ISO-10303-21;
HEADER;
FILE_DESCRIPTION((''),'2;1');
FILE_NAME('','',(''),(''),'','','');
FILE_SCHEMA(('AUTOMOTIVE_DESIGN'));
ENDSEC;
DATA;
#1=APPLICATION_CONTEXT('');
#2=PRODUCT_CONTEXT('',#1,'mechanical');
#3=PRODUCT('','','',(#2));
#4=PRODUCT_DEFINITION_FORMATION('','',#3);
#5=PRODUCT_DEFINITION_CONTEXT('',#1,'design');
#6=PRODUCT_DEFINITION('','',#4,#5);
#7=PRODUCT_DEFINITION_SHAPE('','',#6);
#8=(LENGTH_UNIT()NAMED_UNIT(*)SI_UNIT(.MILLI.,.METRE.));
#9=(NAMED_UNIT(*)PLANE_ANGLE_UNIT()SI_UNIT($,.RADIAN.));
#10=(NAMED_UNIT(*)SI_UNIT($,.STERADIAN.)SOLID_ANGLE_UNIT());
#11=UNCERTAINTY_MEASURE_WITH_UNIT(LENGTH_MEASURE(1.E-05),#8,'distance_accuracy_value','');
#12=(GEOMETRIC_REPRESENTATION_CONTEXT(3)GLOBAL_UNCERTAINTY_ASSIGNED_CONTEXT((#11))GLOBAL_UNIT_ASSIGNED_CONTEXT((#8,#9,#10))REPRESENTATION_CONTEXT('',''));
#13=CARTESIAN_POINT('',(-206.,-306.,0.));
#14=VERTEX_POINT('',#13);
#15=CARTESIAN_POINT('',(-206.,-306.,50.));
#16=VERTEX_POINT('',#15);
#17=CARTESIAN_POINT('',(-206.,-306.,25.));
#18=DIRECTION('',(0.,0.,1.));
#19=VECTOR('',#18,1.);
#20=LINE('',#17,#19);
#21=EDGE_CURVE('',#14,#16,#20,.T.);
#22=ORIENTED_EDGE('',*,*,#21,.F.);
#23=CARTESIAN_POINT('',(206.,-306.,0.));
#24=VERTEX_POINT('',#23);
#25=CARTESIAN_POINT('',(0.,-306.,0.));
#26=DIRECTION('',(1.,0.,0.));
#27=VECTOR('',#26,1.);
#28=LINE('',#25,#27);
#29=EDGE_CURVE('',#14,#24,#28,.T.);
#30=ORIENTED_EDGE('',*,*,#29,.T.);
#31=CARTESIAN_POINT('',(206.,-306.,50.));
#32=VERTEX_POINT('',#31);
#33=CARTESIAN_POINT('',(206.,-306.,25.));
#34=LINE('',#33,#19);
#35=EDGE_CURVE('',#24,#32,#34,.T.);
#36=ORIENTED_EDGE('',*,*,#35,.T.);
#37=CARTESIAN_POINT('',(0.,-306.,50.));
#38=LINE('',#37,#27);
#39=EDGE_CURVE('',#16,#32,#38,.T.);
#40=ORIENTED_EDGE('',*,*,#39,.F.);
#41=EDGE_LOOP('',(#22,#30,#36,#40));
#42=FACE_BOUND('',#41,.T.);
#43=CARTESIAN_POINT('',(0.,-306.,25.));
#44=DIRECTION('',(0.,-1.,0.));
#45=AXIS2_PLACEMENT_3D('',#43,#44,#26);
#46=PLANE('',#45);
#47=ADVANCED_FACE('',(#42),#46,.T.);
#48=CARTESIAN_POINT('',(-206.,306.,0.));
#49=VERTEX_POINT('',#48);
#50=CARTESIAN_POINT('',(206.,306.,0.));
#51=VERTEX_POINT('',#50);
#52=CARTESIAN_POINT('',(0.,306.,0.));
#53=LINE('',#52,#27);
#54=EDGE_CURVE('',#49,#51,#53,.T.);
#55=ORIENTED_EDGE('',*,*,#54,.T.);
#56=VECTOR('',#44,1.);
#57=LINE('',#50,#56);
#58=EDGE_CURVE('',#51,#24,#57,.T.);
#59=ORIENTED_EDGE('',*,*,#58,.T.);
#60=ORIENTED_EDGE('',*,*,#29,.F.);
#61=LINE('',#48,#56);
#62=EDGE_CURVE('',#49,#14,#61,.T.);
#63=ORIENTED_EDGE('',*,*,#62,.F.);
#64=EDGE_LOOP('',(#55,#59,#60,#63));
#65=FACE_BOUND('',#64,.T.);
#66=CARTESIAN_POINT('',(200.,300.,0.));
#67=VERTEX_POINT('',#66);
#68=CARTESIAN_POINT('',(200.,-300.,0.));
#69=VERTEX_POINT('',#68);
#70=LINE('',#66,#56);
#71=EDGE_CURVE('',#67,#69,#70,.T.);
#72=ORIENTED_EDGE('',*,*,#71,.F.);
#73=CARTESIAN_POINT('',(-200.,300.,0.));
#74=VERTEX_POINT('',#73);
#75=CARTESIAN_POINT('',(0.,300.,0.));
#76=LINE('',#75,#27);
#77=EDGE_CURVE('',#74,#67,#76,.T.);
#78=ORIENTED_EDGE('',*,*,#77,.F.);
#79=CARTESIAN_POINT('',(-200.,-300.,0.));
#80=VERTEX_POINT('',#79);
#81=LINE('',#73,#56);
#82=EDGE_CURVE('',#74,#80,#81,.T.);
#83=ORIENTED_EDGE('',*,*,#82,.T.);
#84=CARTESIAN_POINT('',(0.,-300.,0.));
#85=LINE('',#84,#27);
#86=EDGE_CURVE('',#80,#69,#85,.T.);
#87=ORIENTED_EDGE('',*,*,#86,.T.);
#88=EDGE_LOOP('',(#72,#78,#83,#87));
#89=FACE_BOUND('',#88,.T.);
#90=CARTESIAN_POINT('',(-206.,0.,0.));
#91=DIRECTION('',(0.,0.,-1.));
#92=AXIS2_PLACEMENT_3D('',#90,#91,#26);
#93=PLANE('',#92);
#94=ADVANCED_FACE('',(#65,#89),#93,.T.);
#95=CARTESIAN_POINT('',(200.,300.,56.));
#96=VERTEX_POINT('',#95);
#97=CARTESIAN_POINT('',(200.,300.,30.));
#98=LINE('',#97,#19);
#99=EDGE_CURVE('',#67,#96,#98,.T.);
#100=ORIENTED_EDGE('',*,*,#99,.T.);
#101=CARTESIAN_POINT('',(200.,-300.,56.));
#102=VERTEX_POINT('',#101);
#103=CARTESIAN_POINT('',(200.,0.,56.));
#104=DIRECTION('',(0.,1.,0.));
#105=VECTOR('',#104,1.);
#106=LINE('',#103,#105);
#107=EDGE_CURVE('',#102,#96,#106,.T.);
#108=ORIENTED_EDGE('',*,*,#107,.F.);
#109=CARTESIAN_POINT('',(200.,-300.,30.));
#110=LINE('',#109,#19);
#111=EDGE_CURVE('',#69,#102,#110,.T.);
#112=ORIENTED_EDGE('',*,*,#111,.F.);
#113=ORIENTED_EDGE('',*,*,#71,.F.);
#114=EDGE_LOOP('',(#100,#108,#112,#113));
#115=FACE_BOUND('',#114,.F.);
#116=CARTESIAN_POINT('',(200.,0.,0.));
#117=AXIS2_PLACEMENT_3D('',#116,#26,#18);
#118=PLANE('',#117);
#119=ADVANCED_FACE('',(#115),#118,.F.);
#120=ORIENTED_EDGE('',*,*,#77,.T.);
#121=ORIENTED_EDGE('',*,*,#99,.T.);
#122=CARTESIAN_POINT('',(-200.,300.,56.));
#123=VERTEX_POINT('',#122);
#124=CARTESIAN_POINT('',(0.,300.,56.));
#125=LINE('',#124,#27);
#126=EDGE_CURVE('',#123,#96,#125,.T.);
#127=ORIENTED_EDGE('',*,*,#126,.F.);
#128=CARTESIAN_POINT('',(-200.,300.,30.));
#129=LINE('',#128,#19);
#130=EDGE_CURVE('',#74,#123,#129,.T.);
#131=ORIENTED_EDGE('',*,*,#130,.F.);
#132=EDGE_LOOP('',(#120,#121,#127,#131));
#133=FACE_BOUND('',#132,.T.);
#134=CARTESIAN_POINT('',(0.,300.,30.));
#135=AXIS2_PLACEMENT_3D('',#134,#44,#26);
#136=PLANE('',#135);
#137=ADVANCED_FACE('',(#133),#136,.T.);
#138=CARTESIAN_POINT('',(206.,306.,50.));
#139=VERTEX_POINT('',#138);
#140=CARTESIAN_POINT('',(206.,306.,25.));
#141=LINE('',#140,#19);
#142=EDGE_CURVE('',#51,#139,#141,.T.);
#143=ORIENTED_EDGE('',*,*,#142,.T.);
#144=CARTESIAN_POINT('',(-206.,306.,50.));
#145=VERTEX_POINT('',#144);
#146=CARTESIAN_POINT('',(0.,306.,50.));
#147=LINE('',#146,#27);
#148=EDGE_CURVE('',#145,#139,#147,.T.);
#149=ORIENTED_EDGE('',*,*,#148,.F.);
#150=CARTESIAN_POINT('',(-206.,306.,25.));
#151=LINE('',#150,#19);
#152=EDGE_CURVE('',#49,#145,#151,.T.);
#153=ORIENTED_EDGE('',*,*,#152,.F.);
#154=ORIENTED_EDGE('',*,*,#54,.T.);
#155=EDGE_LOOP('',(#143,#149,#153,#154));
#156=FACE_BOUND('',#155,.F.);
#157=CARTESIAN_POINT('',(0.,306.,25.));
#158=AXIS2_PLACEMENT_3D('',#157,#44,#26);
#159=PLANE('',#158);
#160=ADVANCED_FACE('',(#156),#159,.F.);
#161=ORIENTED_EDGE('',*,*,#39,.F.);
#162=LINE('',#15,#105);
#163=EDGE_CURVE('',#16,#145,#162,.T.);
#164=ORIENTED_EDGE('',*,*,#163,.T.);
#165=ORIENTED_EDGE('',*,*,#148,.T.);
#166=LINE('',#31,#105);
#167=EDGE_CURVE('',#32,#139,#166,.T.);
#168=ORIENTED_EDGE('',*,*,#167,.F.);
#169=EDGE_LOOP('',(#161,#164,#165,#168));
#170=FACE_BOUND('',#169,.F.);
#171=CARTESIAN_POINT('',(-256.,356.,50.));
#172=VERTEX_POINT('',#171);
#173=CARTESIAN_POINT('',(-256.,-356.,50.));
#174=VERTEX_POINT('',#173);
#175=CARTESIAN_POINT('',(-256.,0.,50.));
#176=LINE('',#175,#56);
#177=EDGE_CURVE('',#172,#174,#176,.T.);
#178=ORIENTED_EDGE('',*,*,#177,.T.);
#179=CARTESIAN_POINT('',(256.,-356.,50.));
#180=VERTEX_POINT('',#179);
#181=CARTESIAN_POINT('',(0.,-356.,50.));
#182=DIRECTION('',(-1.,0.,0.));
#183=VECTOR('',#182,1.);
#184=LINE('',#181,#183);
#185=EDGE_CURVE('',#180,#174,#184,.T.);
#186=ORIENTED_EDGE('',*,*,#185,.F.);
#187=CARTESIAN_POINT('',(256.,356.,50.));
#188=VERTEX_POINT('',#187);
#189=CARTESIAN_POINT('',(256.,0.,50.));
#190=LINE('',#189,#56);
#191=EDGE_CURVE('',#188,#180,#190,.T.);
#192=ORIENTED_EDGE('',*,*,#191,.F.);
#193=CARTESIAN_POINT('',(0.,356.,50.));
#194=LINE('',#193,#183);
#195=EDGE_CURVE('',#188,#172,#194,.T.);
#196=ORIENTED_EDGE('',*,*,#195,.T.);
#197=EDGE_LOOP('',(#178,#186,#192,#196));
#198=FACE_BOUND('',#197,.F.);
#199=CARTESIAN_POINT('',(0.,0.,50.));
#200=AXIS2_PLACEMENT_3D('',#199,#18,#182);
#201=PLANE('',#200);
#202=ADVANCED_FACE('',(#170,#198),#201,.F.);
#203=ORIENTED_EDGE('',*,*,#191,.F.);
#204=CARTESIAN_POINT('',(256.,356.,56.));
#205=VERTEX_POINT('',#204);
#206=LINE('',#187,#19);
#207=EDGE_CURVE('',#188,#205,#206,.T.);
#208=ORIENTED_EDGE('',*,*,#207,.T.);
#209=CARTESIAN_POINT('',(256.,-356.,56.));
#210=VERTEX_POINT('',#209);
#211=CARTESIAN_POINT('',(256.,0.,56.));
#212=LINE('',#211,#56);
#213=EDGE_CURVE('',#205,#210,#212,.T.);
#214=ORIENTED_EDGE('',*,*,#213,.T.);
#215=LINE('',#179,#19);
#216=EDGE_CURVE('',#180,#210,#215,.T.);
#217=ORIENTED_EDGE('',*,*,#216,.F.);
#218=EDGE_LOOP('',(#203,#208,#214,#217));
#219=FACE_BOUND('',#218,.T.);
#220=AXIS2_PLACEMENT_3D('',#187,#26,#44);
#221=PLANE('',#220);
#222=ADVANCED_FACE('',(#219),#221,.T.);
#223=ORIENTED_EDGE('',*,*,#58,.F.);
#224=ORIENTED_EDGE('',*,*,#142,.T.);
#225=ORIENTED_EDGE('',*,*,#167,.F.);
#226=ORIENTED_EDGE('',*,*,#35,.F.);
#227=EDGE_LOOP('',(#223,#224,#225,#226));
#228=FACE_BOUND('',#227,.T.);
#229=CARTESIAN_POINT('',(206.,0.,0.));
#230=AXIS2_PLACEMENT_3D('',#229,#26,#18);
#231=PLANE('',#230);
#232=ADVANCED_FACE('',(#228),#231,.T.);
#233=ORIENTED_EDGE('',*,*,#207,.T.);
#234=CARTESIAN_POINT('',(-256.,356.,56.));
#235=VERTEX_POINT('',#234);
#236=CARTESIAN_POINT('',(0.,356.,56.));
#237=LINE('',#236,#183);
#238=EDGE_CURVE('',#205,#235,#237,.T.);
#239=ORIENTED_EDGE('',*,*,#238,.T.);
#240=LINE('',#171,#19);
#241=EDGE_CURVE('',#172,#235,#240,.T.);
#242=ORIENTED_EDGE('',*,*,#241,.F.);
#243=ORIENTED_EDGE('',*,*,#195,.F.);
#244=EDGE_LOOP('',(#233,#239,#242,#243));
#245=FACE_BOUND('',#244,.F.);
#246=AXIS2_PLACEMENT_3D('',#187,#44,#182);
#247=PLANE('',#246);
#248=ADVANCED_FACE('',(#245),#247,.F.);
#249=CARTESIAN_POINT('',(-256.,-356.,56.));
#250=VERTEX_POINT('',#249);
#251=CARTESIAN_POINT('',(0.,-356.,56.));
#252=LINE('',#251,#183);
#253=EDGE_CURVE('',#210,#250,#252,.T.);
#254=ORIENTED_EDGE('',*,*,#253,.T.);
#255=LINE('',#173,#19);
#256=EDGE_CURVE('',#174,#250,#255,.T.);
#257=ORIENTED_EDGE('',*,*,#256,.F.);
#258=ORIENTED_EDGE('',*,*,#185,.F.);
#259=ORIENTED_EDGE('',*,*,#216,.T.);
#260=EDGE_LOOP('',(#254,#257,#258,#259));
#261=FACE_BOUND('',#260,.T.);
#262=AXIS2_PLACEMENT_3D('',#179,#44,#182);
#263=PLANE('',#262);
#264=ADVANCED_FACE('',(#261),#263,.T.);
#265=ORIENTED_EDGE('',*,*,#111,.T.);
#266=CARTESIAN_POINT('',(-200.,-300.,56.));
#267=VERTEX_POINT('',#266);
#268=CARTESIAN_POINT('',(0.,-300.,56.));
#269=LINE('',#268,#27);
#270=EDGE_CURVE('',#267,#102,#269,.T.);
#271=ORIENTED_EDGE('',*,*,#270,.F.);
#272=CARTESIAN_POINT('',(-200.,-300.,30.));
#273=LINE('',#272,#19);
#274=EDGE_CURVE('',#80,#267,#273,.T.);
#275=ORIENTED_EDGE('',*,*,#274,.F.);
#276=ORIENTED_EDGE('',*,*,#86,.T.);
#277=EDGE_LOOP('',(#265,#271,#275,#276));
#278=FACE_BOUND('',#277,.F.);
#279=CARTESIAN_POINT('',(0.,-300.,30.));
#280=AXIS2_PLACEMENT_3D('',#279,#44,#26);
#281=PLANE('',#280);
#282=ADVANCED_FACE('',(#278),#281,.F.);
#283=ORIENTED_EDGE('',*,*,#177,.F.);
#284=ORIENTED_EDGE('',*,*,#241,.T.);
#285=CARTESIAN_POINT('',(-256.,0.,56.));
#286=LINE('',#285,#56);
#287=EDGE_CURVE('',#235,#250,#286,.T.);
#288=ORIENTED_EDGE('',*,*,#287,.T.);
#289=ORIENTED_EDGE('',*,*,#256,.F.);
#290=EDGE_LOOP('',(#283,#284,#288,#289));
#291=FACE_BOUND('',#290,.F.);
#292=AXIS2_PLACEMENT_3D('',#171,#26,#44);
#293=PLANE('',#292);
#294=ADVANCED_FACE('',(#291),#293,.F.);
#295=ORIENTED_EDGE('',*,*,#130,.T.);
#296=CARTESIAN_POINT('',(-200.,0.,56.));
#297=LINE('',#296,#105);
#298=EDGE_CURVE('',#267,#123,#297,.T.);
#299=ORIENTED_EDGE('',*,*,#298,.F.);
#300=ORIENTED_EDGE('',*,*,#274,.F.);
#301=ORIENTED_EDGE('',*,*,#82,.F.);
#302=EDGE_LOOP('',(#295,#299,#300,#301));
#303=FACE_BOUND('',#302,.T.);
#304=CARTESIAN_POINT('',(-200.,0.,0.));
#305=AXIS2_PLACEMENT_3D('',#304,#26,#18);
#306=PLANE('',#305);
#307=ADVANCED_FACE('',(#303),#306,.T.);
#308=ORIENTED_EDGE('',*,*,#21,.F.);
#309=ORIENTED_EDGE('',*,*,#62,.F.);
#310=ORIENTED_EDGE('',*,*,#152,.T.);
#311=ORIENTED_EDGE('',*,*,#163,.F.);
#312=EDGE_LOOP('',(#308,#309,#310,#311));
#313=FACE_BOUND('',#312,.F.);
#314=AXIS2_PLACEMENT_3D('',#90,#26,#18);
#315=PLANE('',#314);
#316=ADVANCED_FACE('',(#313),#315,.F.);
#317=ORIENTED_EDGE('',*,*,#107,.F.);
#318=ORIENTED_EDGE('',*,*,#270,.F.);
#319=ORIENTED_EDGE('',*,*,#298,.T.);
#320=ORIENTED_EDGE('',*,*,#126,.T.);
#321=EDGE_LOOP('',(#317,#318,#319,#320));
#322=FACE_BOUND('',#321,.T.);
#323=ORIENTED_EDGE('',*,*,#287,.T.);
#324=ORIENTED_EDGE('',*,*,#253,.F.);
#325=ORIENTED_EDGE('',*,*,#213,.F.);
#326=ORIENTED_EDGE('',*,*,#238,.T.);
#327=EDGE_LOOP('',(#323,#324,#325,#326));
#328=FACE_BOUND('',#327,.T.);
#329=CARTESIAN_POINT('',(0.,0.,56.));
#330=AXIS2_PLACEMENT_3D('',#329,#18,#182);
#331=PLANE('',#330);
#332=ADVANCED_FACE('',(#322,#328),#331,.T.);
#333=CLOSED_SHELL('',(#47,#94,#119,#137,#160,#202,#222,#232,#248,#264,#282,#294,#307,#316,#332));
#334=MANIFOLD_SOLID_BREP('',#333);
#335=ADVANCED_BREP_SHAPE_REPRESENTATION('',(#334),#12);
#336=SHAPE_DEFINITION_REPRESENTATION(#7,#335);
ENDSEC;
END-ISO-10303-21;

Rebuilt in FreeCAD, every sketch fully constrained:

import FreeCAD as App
import Part
import Sketcher

V = App.Vector


def add_polygon(sketch, points):
    """Adds a closed chain of lines whose ends are joined by coincident constraints."""
    first, n = sketch.GeometryCount, len(points)
    for a, b in zip(points, points[1:] + points[:1]):
        sketch.addGeometry(Part.LineSegment(App.Vector(*a, 0), App.Vector(*b, 0)), False)
    for i in range(n):
        sketch.addConstraint(Sketcher.Constraint("Coincident", first + i, 2, first + (i + 1) % n, 1))

doc = App.newDocument("Part")
body = doc.addObject("PartDesign::Body", "Body")

# Sketch on XZ plane
sketch1 = body.newObject("Sketcher::SketchObject", "Sketch")
sketch1.AttachmentSupport = (doc.getObject("XZ_Plane"), [""])
sketch1.MapMode = "FlatFace"
add_polygon(sketch1, [(-200, 60), (-200, 0), (200, 0), (200, 60)])  # lines 0-3
sketch1.addConstraint(Sketcher.Constraint("Vertical", 0))
sketch1.addConstraint(Sketcher.Constraint("Horizontal", 1))
sketch1.addConstraint(Sketcher.Constraint("Vertical", 2))
sketch1.addConstraint(Sketcher.Constraint("Horizontal", 3))
sketch1.addConstraint(Sketcher.Constraint("Symmetric", 0, 2, 1, 2, -1, 1))
sketch1.addConstraint(Sketcher.Constraint("DistanceX", 1, 1, 1, 2, 400.0))
sketch1.addConstraint(Sketcher.Constraint("DistanceY", 0, 2, 0, 1, 60.0))
pad1 = body.newObject("PartDesign::Pad", "Pad")
pad1.Profile = sketch1
pad1.Length = 600
pad1.Midplane = True
body2 = doc.addObject("PartDesign::Body", "Body001")

# Sketch on XZ plane
sketch2 = body2.newObject("Sketcher::SketchObject", "Sketch001")
sketch2.AttachmentSupport = (doc.getObject("XZ_Plane001"), [""])
sketch2.MapMode = "FlatFace"
add_polygon(sketch2, [(-206, 50), (-206, 0), (206, 0), (206, 50)])  # lines 0-3
sketch2.addConstraint(Sketcher.Constraint("Vertical", 0))
sketch2.addConstraint(Sketcher.Constraint("Horizontal", 1))
sketch2.addConstraint(Sketcher.Constraint("Vertical", 2))
sketch2.addConstraint(Sketcher.Constraint("Horizontal", 3))
sketch2.addConstraint(Sketcher.Constraint("Symmetric", 0, 2, 1, 2, -1, 1))
sketch2.addConstraint(Sketcher.Constraint("DistanceX", 1, 1, 1, 2, 412.0))
sketch2.addConstraint(Sketcher.Constraint("DistanceY", 0, 2, 0, 1, 50.0))
pad2 = body2.newObject("PartDesign::Pad", "Pad001")
pad2.Profile = sketch2
pad2.Length = 612
pad2.Midplane = True

# Sketch on XY plane
sketch3 = body2.newObject("Sketcher::SketchObject", "Sketch002")
sketch3.AttachmentSupport = (doc.getObject("XY_Plane001"), [""])
sketch3.MapMode = "FlatFace"
sketch3.AttachmentOffset = App.Placement(V(0, 0, 50), App.Rotation())
add_polygon(sketch3, [(256, -356), (256, 356), (-256, 356), (-256, -356)])  # lines 0-3
sketch3.addConstraint(Sketcher.Constraint("Vertical", 0))
sketch3.addConstraint(Sketcher.Constraint("Horizontal", 1))
sketch3.addConstraint(Sketcher.Constraint("Vertical", 2))
sketch3.addConstraint(Sketcher.Constraint("Horizontal", 3))
sketch3.addConstraint(Sketcher.Constraint("Symmetric", 0, 2, 2, 2, -1, 1))
sketch3.addConstraint(Sketcher.Constraint("DistanceX", 1, 2, 1, 1, 512.0))
sketch3.addConstraint(Sketcher.Constraint("DistanceY", 0, 1, 0, 2, 712.0))
pad3 = body2.newObject("PartDesign::Pad", "Pad002")
pad3.Profile = sketch3
pad3.Length = 6
doc.recompute()

boolean = body2.newObject("PartDesign::Boolean", "Boolean")
boolean.Type = "Cut"
boolean.addObjects([body])

doc.recompute()
